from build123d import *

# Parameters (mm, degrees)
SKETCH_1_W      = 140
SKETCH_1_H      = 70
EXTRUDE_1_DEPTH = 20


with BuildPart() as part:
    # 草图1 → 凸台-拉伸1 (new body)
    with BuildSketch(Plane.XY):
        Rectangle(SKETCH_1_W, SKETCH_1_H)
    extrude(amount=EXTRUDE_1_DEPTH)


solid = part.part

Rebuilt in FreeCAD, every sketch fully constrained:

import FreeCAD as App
import Part
import Sketcher

doc = App.newDocument("Part")
params = doc.addObject("Spreadsheet::Sheet", "Params")
for row, (alias, value) in enumerate([
    ("sketch1_width", "140 mm"),
    ("sketch1_height", "70 mm"),
    ("pad1_length", "20 mm"),
], start=1):
    params.set(f"A{row}", alias)
    params.set(f"B{row}", "=" + value)
    params.setAlias(f"B{row}", alias)

body = doc.addObject("PartDesign::Body", "Body")

# Sketch on XY plane
sketch1 = body.newObject("Sketcher::SketchObject", "Sketch")
sketch1.AttachmentSupport = (doc.getObject("XY_Plane"), [""])
sketch1.MapMode = "FlatFace"
sketch1.addGeometry([
    Part.LineSegment(App.Vector(-70, 35, 0), App.Vector(-70, -35, 0)),
    Part.LineSegment(App.Vector(-70, -35, 0), App.Vector(70, -35, 0)),
    Part.LineSegment(App.Vector(70, -35, 0), App.Vector(70, 35, 0)),
    Part.LineSegment(App.Vector(70, 35, 0), App.Vector(-70, 35, 0)),
], False)
sketch1.addConstraint([
    Sketcher.Constraint("Coincident", 0, 2, 1, 1),
    Sketcher.Constraint("Coincident", 1, 2, 2, 1),
    Sketcher.Constraint("Coincident", 2, 2, 3, 1),
    Sketcher.Constraint("Coincident", 3, 2, 0, 1),
    Sketcher.Constraint("Vertical", 0),
    Sketcher.Constraint("Horizontal", 1),
    Sketcher.Constraint("Vertical", 2),
    Sketcher.Constraint("Horizontal", 3),
    Sketcher.Constraint("Symmetric", 0, 2, 2, 2, -1, 1),
    Sketcher.Constraint("DistanceX", 1, 1, 1, 2, 140.0),
    Sketcher.Constraint("DistanceY", 0, 2, 0, 1, 70.0),
])
sketch1.setExpression("Constraints[9]", "Params.sketch1_width")
sketch1.setExpression("Constraints[10]", "Params.sketch1_height")
pad1 = body.newObject("PartDesign::Pad", "Pad")
pad1.Profile = sketch1
pad1.setExpression("Length", "Params.pad1_length")

doc.recompute()
